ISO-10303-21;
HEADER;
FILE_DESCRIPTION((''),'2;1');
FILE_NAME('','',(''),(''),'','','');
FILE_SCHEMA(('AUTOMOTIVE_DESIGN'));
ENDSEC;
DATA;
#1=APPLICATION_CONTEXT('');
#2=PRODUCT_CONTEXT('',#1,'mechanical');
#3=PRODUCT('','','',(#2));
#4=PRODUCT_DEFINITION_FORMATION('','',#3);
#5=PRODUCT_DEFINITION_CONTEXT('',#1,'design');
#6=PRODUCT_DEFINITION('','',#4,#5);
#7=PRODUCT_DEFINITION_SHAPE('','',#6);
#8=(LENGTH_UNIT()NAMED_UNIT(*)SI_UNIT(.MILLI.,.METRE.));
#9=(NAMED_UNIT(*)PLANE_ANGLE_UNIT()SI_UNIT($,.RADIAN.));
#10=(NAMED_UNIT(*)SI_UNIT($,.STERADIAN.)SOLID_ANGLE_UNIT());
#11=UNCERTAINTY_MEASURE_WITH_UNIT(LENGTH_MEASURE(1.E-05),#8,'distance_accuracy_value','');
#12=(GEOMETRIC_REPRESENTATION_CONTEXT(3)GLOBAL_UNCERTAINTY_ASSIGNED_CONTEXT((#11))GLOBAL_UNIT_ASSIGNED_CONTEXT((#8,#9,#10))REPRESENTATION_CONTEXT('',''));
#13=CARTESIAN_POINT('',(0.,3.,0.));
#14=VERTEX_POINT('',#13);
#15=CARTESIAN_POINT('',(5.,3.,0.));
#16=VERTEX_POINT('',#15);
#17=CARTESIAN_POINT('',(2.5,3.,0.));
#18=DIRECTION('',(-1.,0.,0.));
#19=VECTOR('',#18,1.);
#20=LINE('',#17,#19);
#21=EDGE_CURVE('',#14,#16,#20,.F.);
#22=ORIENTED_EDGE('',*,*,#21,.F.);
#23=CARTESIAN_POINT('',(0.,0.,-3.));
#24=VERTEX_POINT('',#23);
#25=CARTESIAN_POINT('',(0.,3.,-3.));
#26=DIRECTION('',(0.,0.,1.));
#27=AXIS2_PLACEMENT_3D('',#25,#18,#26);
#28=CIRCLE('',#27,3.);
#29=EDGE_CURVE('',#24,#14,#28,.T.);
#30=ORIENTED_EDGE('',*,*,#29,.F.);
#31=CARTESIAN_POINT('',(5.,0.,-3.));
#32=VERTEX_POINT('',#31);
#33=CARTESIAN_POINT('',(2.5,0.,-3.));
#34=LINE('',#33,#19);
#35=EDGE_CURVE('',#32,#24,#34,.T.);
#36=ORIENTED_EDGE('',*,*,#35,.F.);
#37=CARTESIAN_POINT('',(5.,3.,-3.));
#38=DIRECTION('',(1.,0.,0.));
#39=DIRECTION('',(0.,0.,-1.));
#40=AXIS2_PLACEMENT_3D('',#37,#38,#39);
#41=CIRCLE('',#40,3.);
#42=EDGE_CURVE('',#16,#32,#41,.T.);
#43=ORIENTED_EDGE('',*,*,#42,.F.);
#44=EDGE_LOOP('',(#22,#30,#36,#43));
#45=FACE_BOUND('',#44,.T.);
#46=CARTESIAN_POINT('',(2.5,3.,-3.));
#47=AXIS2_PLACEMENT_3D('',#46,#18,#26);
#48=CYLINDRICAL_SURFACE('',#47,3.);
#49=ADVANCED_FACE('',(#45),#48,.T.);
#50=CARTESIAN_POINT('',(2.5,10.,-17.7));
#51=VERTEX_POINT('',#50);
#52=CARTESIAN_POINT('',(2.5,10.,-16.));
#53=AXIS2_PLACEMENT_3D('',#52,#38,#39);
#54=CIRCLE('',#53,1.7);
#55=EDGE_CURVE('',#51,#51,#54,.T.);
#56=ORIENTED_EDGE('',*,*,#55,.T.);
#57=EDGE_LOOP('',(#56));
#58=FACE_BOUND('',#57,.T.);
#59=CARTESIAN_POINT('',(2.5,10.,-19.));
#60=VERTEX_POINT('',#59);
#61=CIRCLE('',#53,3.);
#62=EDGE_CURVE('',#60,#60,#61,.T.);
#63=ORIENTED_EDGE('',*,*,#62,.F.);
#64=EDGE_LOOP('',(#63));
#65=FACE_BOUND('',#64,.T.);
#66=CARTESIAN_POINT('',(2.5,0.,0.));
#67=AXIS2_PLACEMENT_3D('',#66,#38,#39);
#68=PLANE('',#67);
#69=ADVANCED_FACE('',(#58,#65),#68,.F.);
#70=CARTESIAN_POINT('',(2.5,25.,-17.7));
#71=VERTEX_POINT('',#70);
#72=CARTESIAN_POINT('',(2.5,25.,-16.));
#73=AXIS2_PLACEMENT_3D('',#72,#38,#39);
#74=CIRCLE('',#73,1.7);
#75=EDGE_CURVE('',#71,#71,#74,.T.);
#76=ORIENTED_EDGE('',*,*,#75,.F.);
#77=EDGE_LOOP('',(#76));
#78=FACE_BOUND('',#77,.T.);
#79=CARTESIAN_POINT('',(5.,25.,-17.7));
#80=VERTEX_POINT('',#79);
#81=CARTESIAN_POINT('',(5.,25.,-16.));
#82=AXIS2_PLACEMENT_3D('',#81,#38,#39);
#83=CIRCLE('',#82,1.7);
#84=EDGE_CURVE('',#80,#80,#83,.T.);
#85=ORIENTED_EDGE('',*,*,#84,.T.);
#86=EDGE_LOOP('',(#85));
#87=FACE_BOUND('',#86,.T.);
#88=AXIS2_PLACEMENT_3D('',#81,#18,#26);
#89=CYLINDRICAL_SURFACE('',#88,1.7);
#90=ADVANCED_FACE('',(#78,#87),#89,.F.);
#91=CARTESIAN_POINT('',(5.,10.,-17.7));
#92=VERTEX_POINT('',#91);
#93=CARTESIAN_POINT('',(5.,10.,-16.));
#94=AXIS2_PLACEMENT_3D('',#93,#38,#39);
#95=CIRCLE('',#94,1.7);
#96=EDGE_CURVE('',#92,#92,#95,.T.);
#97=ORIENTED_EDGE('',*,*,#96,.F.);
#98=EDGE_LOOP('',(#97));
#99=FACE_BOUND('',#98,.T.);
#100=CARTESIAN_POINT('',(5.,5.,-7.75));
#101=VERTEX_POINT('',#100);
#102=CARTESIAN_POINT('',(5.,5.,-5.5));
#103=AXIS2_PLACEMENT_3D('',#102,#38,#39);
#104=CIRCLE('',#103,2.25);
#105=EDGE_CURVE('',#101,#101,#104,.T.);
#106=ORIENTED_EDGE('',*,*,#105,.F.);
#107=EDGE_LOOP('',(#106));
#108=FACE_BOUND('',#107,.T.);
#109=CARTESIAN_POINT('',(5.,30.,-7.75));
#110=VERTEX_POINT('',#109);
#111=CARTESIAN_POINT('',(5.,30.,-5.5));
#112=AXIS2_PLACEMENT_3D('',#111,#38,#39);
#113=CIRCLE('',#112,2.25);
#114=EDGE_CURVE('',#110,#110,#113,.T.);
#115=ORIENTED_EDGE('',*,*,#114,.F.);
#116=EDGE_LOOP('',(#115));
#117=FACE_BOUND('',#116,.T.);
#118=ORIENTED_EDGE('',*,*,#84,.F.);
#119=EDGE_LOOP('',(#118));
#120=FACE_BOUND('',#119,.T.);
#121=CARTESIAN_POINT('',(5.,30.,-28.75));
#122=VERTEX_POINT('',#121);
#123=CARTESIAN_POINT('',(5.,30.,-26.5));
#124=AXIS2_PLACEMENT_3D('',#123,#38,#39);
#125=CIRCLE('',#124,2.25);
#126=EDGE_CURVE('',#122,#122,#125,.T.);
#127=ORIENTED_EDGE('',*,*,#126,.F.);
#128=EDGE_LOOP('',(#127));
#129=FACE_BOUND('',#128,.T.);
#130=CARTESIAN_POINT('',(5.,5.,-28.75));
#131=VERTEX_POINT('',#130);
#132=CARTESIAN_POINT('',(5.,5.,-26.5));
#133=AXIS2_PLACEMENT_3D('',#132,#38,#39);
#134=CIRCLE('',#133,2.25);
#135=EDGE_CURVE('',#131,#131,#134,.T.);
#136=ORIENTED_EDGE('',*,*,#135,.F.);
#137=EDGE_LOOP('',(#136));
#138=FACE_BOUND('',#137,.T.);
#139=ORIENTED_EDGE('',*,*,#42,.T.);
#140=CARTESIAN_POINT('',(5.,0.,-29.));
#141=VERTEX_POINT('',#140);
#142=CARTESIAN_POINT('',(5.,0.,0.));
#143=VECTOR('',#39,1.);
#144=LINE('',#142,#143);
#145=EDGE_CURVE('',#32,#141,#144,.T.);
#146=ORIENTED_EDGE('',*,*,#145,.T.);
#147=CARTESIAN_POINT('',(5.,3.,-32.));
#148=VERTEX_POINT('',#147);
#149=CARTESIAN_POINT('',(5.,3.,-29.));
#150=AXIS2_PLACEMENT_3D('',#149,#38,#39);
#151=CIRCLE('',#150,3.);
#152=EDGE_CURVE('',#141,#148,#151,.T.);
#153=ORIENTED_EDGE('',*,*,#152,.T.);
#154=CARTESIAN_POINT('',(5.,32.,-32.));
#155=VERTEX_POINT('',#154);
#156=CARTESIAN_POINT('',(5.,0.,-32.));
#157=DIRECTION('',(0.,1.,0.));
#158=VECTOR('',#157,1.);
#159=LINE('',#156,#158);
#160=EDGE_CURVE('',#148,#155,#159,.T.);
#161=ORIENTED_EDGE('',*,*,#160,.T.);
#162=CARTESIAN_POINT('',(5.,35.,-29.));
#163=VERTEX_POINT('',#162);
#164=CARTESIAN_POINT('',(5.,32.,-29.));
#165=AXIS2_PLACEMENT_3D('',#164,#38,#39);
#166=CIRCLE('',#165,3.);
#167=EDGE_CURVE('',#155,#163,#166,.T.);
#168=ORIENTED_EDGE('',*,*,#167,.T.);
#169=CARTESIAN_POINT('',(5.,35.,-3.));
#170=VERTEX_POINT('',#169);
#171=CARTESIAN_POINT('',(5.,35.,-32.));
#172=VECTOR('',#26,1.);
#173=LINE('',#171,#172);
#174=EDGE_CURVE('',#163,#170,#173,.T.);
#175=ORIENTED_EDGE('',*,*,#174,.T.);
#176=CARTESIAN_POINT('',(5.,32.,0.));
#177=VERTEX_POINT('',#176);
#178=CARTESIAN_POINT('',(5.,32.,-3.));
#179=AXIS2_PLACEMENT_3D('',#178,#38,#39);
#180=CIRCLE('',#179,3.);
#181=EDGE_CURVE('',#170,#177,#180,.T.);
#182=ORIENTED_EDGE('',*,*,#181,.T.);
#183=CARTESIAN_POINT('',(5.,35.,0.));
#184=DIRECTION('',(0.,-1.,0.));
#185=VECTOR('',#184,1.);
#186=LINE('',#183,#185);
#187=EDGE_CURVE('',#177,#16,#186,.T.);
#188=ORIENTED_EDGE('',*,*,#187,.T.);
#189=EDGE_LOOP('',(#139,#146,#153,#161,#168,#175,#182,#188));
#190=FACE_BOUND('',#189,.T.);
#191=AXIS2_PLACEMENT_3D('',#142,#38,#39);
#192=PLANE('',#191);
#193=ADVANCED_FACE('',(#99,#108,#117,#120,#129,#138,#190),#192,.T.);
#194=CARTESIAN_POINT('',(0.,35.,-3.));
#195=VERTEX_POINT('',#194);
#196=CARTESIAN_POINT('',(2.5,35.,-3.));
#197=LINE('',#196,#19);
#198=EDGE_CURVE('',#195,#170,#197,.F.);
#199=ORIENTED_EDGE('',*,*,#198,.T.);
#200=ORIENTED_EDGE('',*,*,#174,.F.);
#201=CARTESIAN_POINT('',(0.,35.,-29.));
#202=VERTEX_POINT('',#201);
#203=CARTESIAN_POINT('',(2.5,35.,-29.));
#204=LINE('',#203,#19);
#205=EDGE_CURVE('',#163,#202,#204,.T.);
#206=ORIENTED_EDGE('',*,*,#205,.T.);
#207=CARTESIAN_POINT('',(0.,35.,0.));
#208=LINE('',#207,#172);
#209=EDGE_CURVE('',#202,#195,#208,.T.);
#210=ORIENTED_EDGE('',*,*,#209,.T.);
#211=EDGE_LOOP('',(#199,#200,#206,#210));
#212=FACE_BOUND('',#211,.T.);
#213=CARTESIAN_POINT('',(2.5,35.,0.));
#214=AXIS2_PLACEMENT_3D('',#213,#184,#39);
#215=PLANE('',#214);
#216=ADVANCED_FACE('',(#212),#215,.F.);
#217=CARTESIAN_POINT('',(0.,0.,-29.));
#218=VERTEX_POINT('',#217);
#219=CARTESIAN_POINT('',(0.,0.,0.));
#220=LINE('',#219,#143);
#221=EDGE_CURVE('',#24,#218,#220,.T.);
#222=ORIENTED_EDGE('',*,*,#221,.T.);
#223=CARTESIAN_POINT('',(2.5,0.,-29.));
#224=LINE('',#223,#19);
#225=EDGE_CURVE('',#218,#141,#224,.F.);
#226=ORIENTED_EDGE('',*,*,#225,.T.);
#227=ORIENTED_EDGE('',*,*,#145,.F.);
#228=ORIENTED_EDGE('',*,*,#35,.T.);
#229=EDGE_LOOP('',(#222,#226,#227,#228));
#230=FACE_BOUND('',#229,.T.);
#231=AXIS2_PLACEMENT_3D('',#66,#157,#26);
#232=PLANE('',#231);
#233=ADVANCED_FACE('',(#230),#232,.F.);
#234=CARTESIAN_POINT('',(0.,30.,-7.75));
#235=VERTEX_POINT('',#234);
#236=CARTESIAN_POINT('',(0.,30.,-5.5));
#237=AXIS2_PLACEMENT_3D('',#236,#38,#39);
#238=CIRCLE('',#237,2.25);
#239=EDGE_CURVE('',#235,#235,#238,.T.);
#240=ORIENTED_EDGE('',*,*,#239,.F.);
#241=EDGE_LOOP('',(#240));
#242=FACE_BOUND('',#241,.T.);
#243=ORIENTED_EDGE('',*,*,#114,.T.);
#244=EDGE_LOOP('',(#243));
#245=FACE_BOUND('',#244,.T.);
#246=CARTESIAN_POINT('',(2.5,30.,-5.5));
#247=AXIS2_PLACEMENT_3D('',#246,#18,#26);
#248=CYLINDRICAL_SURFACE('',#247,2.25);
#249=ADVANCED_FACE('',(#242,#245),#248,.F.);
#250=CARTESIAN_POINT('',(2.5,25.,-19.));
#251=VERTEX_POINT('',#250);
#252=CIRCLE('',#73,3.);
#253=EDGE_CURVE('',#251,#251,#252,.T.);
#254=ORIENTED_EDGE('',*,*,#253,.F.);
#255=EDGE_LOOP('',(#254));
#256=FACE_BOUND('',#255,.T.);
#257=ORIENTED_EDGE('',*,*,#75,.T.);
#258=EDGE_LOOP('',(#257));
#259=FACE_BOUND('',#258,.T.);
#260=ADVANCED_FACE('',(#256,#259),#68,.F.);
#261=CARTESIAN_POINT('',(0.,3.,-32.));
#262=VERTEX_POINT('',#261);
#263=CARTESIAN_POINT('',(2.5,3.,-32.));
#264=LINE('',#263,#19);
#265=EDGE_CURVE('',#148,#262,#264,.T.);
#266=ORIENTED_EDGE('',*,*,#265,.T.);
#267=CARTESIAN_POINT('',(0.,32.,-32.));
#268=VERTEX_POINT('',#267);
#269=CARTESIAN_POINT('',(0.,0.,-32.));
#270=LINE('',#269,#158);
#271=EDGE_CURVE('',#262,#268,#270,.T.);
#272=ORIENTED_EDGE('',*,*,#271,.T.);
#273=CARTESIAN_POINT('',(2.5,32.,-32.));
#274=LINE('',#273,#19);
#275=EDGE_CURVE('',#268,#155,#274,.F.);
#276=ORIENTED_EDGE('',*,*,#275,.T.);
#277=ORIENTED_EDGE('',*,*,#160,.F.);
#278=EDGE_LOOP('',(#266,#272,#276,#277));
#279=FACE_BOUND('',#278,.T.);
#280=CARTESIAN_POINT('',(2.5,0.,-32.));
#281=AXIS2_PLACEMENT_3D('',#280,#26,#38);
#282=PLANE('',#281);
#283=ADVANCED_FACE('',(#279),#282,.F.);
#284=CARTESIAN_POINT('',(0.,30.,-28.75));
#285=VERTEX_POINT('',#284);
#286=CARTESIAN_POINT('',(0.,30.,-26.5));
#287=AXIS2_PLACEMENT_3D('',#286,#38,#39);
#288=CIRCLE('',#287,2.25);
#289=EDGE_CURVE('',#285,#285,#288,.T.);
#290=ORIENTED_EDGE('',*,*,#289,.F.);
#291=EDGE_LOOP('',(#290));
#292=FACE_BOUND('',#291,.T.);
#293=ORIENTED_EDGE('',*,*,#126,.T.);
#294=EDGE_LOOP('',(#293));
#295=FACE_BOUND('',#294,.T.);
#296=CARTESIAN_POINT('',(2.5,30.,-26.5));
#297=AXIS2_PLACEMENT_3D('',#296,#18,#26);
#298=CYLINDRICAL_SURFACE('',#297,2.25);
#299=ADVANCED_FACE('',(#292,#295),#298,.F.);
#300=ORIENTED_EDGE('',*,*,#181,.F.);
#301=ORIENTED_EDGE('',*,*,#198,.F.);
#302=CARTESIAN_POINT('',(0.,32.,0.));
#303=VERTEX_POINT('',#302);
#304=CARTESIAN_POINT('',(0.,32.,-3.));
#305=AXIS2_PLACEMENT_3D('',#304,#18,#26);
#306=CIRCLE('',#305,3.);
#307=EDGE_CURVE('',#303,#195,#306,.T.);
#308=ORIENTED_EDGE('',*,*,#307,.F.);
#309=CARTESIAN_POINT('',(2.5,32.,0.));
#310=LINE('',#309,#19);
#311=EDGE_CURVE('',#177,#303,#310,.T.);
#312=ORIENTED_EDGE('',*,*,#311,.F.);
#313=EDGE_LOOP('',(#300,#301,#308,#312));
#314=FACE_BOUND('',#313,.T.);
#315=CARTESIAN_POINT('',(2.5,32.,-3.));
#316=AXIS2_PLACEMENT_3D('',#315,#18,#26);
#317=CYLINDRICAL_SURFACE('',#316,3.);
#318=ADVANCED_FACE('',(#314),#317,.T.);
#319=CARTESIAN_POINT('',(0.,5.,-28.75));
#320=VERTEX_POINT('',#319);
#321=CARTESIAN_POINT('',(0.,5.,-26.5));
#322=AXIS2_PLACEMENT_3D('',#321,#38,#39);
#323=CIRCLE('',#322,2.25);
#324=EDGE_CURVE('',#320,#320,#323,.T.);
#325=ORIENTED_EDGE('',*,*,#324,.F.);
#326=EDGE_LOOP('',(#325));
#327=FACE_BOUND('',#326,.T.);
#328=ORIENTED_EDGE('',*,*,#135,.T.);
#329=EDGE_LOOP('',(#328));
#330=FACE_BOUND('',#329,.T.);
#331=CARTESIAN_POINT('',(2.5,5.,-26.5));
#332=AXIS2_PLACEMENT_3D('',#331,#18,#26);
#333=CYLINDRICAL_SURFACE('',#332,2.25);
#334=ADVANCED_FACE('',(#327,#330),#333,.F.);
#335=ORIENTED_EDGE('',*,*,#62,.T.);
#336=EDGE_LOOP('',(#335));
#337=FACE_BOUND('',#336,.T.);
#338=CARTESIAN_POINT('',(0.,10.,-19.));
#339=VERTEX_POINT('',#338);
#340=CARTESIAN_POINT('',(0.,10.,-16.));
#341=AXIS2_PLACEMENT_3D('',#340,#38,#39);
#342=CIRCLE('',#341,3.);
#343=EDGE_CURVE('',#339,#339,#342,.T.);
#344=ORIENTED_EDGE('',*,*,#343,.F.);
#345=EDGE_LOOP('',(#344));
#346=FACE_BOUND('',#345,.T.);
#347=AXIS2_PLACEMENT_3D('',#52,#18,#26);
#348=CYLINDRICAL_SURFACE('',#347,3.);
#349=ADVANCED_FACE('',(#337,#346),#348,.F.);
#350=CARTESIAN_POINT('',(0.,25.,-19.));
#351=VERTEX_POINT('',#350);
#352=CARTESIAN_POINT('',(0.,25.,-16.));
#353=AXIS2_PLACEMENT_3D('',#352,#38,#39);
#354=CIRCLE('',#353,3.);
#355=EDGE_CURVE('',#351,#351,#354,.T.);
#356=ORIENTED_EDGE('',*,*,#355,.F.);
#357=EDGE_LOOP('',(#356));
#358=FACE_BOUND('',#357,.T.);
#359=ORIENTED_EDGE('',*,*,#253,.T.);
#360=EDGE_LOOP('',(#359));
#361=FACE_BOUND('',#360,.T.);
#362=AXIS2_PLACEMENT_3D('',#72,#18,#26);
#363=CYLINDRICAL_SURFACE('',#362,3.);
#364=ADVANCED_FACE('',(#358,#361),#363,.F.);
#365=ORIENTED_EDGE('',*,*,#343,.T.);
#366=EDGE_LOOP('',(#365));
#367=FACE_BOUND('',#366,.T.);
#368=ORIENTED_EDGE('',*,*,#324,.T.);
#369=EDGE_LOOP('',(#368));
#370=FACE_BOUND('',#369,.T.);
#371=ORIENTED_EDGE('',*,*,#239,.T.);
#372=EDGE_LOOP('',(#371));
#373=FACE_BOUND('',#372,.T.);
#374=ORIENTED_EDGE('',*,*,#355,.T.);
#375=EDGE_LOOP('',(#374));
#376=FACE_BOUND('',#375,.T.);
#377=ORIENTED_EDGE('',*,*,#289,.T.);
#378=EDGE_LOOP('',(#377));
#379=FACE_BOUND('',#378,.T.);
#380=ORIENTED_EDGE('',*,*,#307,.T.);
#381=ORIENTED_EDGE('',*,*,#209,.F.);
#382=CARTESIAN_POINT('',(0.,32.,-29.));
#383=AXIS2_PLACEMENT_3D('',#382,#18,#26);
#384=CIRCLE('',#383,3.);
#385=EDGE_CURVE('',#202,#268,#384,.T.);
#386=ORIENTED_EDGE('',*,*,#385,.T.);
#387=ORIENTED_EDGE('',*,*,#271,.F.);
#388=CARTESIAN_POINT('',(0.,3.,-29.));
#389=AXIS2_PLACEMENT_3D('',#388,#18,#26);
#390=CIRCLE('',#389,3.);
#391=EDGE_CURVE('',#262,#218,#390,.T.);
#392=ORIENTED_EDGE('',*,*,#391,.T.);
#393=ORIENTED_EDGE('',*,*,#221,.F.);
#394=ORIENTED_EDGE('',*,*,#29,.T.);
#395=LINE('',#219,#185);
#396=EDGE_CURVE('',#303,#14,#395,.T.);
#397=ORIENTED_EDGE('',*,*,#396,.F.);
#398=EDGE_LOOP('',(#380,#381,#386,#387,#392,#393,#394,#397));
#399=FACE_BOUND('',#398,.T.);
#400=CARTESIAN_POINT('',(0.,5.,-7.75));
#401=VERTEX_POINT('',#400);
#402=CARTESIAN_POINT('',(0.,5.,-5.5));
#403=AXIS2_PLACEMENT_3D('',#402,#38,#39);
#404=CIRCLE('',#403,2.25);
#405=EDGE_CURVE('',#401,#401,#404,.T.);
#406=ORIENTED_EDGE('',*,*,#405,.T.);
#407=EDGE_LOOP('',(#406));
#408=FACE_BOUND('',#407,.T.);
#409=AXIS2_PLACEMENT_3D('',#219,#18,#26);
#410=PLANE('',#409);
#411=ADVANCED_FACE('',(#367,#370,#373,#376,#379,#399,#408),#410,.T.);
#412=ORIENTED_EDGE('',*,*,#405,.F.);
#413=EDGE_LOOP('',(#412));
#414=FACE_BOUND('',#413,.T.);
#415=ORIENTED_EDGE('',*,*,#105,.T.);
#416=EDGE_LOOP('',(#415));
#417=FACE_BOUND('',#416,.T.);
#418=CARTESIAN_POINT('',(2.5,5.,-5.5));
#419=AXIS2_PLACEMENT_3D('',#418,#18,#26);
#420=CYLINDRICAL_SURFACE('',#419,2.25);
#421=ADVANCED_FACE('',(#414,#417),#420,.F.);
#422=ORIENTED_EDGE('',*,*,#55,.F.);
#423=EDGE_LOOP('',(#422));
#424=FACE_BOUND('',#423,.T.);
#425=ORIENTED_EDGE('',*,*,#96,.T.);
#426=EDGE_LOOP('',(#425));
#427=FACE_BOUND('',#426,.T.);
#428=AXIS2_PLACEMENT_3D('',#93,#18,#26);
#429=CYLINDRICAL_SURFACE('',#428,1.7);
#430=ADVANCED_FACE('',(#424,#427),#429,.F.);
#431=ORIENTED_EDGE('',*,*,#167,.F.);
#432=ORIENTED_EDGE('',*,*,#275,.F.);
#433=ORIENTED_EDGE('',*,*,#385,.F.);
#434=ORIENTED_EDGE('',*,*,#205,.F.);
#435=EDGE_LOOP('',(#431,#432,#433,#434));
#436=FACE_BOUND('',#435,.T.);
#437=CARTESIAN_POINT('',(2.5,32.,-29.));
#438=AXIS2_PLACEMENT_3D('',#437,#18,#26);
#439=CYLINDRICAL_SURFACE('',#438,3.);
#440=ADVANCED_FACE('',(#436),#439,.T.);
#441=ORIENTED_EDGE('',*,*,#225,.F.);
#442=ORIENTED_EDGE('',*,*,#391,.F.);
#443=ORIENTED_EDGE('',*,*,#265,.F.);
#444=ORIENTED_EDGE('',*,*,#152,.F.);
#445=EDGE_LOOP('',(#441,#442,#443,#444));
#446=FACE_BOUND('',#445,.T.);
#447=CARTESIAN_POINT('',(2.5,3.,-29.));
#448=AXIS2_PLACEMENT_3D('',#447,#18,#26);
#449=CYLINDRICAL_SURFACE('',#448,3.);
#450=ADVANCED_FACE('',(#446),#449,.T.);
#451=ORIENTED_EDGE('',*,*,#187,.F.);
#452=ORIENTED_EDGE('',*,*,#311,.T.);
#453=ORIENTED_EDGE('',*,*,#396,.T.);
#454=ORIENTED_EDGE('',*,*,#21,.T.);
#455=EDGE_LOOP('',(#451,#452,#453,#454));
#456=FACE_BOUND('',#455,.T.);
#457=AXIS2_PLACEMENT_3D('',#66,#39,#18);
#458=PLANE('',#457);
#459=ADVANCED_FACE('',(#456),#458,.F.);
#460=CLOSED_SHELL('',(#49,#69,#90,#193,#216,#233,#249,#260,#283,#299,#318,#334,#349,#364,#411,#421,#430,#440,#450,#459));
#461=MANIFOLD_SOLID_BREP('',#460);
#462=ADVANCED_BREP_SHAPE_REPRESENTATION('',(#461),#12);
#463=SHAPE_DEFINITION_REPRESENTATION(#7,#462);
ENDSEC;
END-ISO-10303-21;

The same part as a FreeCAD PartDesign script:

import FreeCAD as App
import Part
import Sketcher
from FreeCAD import Vector


def edges_at(feature, points):
    """Names of the edges that pass closest to the given points."""
    edges = feature.Shape.Edges
    near = lambda p: min(range(len(edges)), key=lambda i: edges[i].distToShape(Part.Vertex(*p))[0])
    return sorted({f"Edge{near(p) + 1}" for p in points})


def add_polygon(sketch, points):
    """Adds a closed chain of lines whose ends are joined by coincident constraints."""
    first, n = sketch.GeometryCount, len(points)
    for a, b in zip(points, points[1:] + points[:1]):
        sketch.addGeometry(Part.LineSegment(App.Vector(*a, 0), App.Vector(*b, 0)), False)
    for i in range(n):
        sketch.addConstraint(Sketcher.Constraint("Coincident", first + i, 2, first + (i + 1) % n, 1))

doc = App.newDocument("Part")
body = doc.addObject("PartDesign::Body", "Body")

sketch1 = body.newObject("Sketcher::SketchObject", "Sketch")
sketch1.AttachmentSupport = (doc.getObject("YZ_Plane"), [""])
sketch1.MapMode = "FlatFace"
add_polygon(sketch1, [(35, 0), (0, 0), (0, -32), (35, -32)])
sketch1.addGeometry(Part.Circle(Vector(5, -5.5, 0), Vector(0, 0, 1), 2.2), False)
sketch1.addGeometry(Part.Circle(Vector(10, -16, 0), Vector(0, 0, 1), 3), False)
sketch1.addGeometry(Part.Circle(Vector(5, -26.5, 0), Vector(0, 0, 1), 2.2), False)
sketch1.addGeometry(Part.Circle(Vector(30, -5.5, 0), Vector(0, 0, 1), 2.2), False)
sketch1.addGeometry(Part.Circle(Vector(25, -16, 0), Vector(0, 0, 1), 3), False)
sketch1.addGeometry(Part.Circle(Vector(30, -26.5, 0), Vector(0, 0, 1), 2.2), False)
sketch1.addConstraint([
    Sketcher.Constraint("Horizontal", 0),
    Sketcher.Constraint("Vertical", 1),
    Sketcher.Constraint("Horizontal", 2),
    Sketcher.Constraint("Vertical", 3),
    Sketcher.Constraint("Coincident", 0, 2, -1, 1),
    Sketcher.Constraint("Equal", 4, 6),
    Sketcher.Constraint("Equal", 6, 7),
    Sketcher.Constraint("Equal", 5, 8),
    Sketcher.Constraint("Equal", 7, 9),
    Sketcher.Constraint("Horizontal", 4, 3, 7, 3),
    Sketcher.Constraint("Horizontal", 5, 3, 8, 3),
    Sketcher.Constraint("Horizontal", 6, 3, 9, 3),
    Sketcher.Constraint("Vertical", 4, 3, 6, 3),
    Sketcher.Constraint("Vertical", 7, 3, 9, 3),
    Sketcher.Constraint("Diameter", 5, 6.0),
    Sketcher.Constraint("Diameter", 4, 4.5),
    Sketcher.Constraint("DistanceX", 0, 2, 0, 1, 35.0),
    Sketcher.Constraint("DistanceY", 1, 2, 1, 1, 32.0),
    Sketcher.Constraint("DistanceX", -1, 1, 4, 3, 5.0),
    Sketcher.Constraint("DistanceX", -1, 1, 5, 3, 10.0),
    Sketcher.Constraint("DistanceY", 5, 3, -1, 1, 16.0),
    Sketcher.Constraint("DistanceX", -1, 1, 7, 3, 30.0),
    Sketcher.Constraint("DistanceX", -1, 1, 8, 3, 25.0),
    Sketcher.Constraint("DistanceY", 6, 3, 4, 3, 21.0),
    Sketcher.Constraint("DistanceY", 4, 3, -1, 1, 5.5),
])
pad1 = body.newObject("PartDesign::Pad", "Pad")
pad1.Profile = sketch1
pad1.Length = 2.5

sketch2 = body.newObject("Sketcher::SketchObject", "Sketch001")
sketch2.AttachmentSupport = (doc.getObject("YZ_Plane"), [""])
sketch2.MapMode = "FlatFace"
sketch2.AttachmentOffset = App.Placement(Vector(0, 0, 2.5), App.Rotation())
add_polygon(sketch2, [(35, 0), (0, 0), (0, -32), (35, -32)])
sketch2.addGeometry(Part.Circle(Vector(5, -5.5, 0), Vector(0, 0, 1), 2.2), False)
sketch2.addGeometry(Part.Circle(Vector(10, -16, 0), Vector(0, 0, 1), 1.7), False)
sketch2.addGeometry(Part.Circle(Vector(5, -26.5, 0), Vector(0, 0, 1), 2.2), False)
sketch2.addGeometry(Part.Circle(Vector(30, -5.5, 0), Vector(0, 0, 1), 2.2), False)
sketch2.addGeometry(Part.Circle(Vector(25, -16, 0), Vector(0, 0, 1), 1.7), False)
sketch2.addGeometry(Part.Circle(Vector(30, -26.5, 0), Vector(0, 0, 1), 2.2), False)
sketch2.addConstraint([
    Sketcher.Constraint("Horizontal", 0),
    Sketcher.Constraint("Vertical", 1),
    Sketcher.Constraint("Horizontal", 2),
    Sketcher.Constraint("Vertical", 3),
    Sketcher.Constraint("Coincident", 0, 2, -1, 1),
    Sketcher.Constraint("Equal", 4, 6),
    Sketcher.Constraint("Equal", 6, 7),
    Sketcher.Constraint("Equal", 5, 8),
    Sketcher.Constraint("Equal", 7, 9),
    Sketcher.Constraint("Horizontal", 4, 3, 7, 3),
    Sketcher.Constraint("Horizontal", 5, 3, 8, 3),
    Sketcher.Constraint("Horizontal", 6, 3, 9, 3),
    Sketcher.Constraint("Vertical", 4, 3, 6, 3),
    Sketcher.Constraint("Vertical", 7, 3, 9, 3),
    Sketcher.Constraint("Diameter", 4, 4.5),
    Sketcher.Constraint("Diameter", 5, 3.4),
    Sketcher.Constraint("DistanceX", 0, 2, 0, 1, 35.0),
    Sketcher.Constraint("DistanceY", 1, 2, 1, 1, 32.0),
    Sketcher.Constraint("DistanceX", -1, 1, 4, 3, 5.0),
    Sketcher.Constraint("DistanceX", -1, 1, 5, 3, 10.0),
    Sketcher.Constraint("DistanceY", 5, 3, -1, 1, 16.0),
    Sketcher.Constraint("DistanceX", -1, 1, 7, 3, 30.0),
    Sketcher.Constraint("DistanceX", -1, 1, 8, 3, 25.0),
    Sketcher.Constraint("DistanceY", 6, 3, 4, 3, 21.0),
    Sketcher.Constraint("DistanceY", 4, 3, -1, 1, 5.5),
])
pad2 = body.newObject("PartDesign::Pad", "Pad001")
pad2.Profile = sketch2
pad2.Length = 2.5
doc.recompute()

fillet = body.newObject("PartDesign::Fillet", "Fillet")
fillet.Base = (pad2, edges_at(pad2, [
    (2.5, 35, 0),
    (2.5, 35, -32),
    (2.5, 0, -32),
    (2.5, 0, 0),
]))
fillet.Radius = 3

doc.recompute()
